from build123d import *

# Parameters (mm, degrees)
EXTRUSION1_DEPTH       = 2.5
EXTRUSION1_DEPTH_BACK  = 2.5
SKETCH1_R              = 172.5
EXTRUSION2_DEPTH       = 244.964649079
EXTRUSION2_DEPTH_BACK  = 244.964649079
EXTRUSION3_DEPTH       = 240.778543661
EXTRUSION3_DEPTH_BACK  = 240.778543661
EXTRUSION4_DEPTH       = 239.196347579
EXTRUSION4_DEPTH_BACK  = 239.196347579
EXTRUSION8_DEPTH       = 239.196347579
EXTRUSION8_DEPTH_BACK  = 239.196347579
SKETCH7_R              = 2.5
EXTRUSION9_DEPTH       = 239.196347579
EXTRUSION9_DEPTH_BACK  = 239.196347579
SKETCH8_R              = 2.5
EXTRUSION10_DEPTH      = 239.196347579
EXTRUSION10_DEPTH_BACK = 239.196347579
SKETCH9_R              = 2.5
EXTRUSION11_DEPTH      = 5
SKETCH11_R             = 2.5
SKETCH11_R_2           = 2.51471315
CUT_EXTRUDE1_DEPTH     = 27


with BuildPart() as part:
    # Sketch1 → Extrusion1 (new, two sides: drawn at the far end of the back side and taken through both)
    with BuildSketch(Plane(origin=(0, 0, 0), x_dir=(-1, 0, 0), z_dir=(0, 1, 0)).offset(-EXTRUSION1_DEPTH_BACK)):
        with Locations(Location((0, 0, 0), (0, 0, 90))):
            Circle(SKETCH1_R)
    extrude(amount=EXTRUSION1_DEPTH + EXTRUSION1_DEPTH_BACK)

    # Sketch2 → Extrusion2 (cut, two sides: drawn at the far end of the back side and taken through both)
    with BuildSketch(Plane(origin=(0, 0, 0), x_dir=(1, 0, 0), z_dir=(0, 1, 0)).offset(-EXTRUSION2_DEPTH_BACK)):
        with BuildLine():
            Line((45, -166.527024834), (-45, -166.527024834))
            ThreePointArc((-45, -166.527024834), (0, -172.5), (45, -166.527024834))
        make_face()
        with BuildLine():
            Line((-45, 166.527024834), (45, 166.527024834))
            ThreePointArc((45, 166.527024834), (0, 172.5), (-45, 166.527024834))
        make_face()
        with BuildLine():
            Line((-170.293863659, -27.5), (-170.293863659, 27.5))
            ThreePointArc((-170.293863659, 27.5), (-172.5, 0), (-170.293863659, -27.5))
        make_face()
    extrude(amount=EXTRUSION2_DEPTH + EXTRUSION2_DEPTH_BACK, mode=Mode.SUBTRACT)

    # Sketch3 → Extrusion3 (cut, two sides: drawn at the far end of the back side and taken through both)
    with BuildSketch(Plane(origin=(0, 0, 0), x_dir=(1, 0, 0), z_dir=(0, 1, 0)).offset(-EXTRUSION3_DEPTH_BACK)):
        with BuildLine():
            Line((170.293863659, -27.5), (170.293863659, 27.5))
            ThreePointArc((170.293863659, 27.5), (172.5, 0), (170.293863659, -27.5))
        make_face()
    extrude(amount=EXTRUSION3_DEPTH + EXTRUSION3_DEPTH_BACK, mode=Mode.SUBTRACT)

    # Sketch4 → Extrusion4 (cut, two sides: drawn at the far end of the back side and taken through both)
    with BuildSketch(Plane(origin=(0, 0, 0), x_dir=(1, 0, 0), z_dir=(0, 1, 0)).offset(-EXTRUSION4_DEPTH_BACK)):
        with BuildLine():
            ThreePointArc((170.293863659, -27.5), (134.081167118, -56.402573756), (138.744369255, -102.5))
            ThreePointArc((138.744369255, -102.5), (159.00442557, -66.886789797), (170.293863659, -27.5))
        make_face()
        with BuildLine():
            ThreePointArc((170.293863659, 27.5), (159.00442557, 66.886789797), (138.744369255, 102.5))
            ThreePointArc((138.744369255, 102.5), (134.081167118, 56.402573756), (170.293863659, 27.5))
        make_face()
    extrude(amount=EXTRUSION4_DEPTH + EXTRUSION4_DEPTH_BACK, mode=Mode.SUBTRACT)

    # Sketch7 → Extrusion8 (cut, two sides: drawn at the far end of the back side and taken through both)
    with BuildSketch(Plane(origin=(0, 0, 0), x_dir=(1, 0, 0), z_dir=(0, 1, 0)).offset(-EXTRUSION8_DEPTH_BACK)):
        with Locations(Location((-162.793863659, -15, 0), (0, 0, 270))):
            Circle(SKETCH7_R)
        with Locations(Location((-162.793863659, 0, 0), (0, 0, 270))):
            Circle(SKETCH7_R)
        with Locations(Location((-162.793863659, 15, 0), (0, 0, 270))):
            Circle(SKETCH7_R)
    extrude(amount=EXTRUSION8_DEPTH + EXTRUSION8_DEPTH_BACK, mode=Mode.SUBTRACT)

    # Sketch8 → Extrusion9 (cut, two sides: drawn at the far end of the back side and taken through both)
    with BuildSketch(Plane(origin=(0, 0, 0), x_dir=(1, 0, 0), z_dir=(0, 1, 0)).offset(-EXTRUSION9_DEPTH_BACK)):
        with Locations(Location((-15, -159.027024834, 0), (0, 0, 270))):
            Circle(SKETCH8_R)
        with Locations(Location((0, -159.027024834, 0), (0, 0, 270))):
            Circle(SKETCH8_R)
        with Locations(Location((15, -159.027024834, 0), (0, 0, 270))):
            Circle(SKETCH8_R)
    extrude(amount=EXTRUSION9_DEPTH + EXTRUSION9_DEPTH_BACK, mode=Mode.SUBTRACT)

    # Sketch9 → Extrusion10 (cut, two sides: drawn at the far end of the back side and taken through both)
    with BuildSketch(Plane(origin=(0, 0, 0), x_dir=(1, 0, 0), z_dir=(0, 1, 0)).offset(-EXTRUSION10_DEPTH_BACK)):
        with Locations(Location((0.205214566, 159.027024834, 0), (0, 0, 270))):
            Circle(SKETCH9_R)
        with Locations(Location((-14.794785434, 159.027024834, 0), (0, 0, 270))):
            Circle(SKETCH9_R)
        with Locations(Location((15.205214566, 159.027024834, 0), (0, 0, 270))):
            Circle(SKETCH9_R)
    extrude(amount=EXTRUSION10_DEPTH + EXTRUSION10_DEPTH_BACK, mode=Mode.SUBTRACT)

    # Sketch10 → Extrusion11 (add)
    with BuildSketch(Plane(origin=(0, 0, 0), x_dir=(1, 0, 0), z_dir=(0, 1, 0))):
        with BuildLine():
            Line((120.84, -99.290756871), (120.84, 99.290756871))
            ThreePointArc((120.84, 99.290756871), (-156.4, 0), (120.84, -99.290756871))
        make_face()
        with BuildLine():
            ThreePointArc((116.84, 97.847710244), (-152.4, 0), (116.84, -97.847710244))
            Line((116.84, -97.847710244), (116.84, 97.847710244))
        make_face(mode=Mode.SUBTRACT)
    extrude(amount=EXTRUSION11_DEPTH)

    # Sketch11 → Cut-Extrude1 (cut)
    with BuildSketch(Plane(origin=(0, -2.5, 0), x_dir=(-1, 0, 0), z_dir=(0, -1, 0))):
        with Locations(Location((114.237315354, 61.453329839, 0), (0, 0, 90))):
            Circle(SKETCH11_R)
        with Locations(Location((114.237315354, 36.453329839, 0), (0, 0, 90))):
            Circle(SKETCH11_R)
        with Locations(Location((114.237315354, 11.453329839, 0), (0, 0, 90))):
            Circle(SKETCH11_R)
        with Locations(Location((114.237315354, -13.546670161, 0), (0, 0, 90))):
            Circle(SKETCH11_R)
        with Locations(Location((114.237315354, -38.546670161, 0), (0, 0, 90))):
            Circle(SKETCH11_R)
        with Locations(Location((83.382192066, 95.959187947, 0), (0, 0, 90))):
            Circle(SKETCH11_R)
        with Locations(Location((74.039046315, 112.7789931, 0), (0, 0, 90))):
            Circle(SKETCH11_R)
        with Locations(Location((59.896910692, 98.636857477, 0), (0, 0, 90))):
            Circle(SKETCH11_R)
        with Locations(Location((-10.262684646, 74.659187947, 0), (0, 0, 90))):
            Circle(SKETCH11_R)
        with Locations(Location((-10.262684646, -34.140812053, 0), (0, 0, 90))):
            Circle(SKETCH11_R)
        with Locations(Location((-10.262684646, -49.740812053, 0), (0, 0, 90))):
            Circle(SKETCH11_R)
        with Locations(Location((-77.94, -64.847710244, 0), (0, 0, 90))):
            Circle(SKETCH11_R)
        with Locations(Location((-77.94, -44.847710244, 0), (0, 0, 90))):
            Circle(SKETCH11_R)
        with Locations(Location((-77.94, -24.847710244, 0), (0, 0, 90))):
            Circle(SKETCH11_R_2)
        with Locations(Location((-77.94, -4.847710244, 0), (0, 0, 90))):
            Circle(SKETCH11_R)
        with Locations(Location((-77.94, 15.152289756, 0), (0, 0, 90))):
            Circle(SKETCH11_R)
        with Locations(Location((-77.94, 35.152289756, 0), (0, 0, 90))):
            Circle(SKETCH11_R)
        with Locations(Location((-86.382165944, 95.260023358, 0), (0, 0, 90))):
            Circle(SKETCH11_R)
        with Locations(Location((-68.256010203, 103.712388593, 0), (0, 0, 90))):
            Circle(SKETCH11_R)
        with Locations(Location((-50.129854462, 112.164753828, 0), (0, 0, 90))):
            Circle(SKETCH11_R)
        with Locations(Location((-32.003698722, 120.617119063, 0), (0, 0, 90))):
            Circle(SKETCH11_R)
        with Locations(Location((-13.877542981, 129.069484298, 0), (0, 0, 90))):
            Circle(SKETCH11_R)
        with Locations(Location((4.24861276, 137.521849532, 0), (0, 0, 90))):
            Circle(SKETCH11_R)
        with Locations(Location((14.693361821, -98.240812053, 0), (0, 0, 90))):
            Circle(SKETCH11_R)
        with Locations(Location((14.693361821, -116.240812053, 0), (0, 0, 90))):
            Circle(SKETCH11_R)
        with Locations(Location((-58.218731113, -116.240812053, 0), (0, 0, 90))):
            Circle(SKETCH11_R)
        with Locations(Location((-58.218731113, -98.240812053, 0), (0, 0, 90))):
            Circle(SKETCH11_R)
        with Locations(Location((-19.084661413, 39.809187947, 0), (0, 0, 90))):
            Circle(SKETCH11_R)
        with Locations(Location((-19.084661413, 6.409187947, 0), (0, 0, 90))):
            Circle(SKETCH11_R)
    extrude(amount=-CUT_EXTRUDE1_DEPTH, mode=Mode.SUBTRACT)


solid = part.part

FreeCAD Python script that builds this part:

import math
import FreeCAD as App
import Part
import Sketcher

V = App.Vector
Q = App.Units.Quantity

doc = App.newDocument("Part")
body = doc.addObject("PartDesign::Body", "Body")

# Sketch on XZ plane
sketch1 = doc.addObject("Sketcher::SketchObject", "Sketch")
body.addObject(sketch1)
sketch1.AttachmentSupport = (doc.XZ_Plane, [""])
sketch1.MapMode = "FlatFace"
sketch1.addGeometry(Part.Circle(V(0, 0, 0), V(0, 0, 1), 172.5), False)
sketch1.addConstraint(Sketcher.Constraint("Coincident", 0, 3, -1, 1))
sketch1.addConstraint(Sketcher.Constraint("Diameter", 0, Q("345 mm")))
pad1 = doc.addObject("PartDesign::Pad", "Pad")
body.addObject(pad1)
pad1.Profile = sketch1
pad1.Type = "TwoLengths"
pad1.Length = 2.5
pad1.Length2 = 2.5
pad1.Reversed = True

# Sketch on XZ plane
sketch2 = doc.addObject("Sketcher::SketchObject", "Sketch001")
body.addObject(sketch2)
sketch2.AttachmentSupport = (doc.XZ_Plane, [""])
sketch2.MapMode = "FlatFace"
sketch2.addGeometry(Part.LineSegment(V(45, 166.527025, 0), V(-45, 166.527025, 0)), False)
sketch2.addGeometry(Part.ArcOfCircle(Part.Circle(V(0, 0, 0), V(0, 0, 1), 172.5), math.radians(74.878335), math.radians(105.121665)), False)
sketch2.addGeometry(Part.LineSegment(V(-45, -166.527025, 0), V(45, -166.527025, 0)), False)
sketch2.addGeometry(Part.ArcOfCircle(Part.Circle(V(0, 0, 0), V(0, 0, 1), 172.5), math.radians(-105.121665), math.radians(-74.878335)), False)
sketch2.addGeometry(Part.LineSegment(V(-170.293864, 27.5, 0), V(-170.293864, -27.5, 0)), False)
sketch2.addGeometry(Part.ArcOfCircle(Part.Circle(V(0, 0, 0), V(0, 0, 1), 172.5), math.radians(170.826751), math.radians(189.173249)), False)
sketch2.addConstraint(Sketcher.Constraint("Coincident", 0, 1, 1, 1))
sketch2.addConstraint(Sketcher.Constraint("Coincident", 1, 2, 0, 2))
sketch2.addConstraint(Sketcher.Constraint("Coincident", 2, 1, 3, 1))
sketch2.addConstraint(Sketcher.Constraint("Coincident", 3, 2, 2, 2))
sketch2.addConstraint(Sketcher.Constraint("Coincident", 4, 1, 5, 1))
sketch2.addConstraint(Sketcher.Constraint("Coincident", 5, 2, 4, 2))
sketch2.addConstraint(Sketcher.Constraint("Horizontal", 0))
sketch2.addConstraint(Sketcher.Constraint("Horizontal", 2))
sketch2.addConstraint(Sketcher.Constraint("Vertical", 4))
sketch2.addConstraint(Sketcher.Constraint("Coincident", 1, 3, -1, 1))
sketch2.addConstraint(Sketcher.Constraint("Coincident", 3, 3, -1, 1))
sketch2.addConstraint(Sketcher.Constraint("Coincident", 5, 3, -1, 1))
sketch2.addConstraint(Sketcher.Constraint("Equal", 1, 3))
sketch2.addConstraint(Sketcher.Constraint("Equal", 3, 5))
sketch2.addConstraint(Sketcher.Constraint("Vertical", 1, 2, 2, 1))
sketch2.addConstraint(Sketcher.Constraint("Radius", 1, Q("172.5 mm")))
sketch2.addConstraint(Sketcher.Constraint("DistanceX", 0, 2, 0, 1, Q("90 mm")))
sketch2.addConstraint(Sketcher.Constraint("DistanceY", 4, 2, 4, 1, Q("55 mm")))
pocket1 = doc.addObject("PartDesign::Pocket", "Pocket")
body.addObject(pocket1)
pocket1.Profile = sketch2
pocket1.Type = "ThroughAll"
pocket1.Midplane = True

# Sketch on XZ plane
sketch3 = doc.addObject("Sketcher::SketchObject", "Sketch002")
body.addObject(sketch3)
sketch3.AttachmentSupport = (doc.XZ_Plane, [""])
sketch3.MapMode = "FlatFace"
sketch3.addGeometry(Part.LineSegment(V(170.293864, -27.5, 0), V(170.293864, 27.5, 0)), False)
sketch3.addGeometry(Part.ArcOfCircle(Part.Circle(V(0, 0, 0), V(0, 0, 1), 172.5), math.radians(-9.173249), math.radians(9.173249)), False)
sketch3.addConstraint(Sketcher.Constraint("Coincident", 0, 1, 1, 1))
sketch3.addConstraint(Sketcher.Constraint("Coincident", 1, 2, 0, 2))
sketch3.addConstraint(Sketcher.Constraint("Vertical", 0))
sketch3.addConstraint(Sketcher.Constraint("Coincident", 1, 3, -1, 1))
sketch3.addConstraint(Sketcher.Constraint("Radius", 1, Q("172.5 mm")))
sketch3.addConstraint(Sketcher.Constraint("DistanceY", 0, 1, 0, 2, Q("55 mm")))
pocket2 = doc.addObject("PartDesign::Pocket", "Pocket001")
body.addObject(pocket2)
pocket2.Profile = sketch3
pocket2.Type = "ThroughAll"
pocket2.Midplane = True

# Sketch on XZ plane
sketch4 = doc.addObject("Sketcher::SketchObject", "Sketch003")
body.addObject(sketch4)
sketch4.AttachmentSupport = (doc.XZ_Plane, [""])
sketch4.MapMode = "FlatFace"
sketch4.addGeometry(Part.ArcOfCircle(Part.Circle(V(178.703055, 75.173214, 0), V(0, 0, 1), 48.409191), math.radians(145.632713), math.radians(259.996366)), False)
sketch4.addGeometry(Part.ArcOfCircle(Part.Circle(V(0, 0, 0), V(0, 0, 1), 172.5), math.radians(9.173249), math.radians(36.455829)), False)
sketch4.addGeometry(Part.ArcOfCircle(Part.Circle(V(0, 0, 0), V(0, 0, 1), 172.5), math.radians(-36.455829), math.radians(-9.173249)), False)
sketch4.addGeometry(Part.ArcOfCircle(Part.Circle(V(178.703055, -75.173214, 0), V(0, 0, 1), 48.409191), math.radians(100.003634), math.radians(214.367287)), False)
sketch4.addConstraint(Sketcher.Constraint("Coincident", 0, 1, 1, 2))
sketch4.addConstraint(Sketcher.Constraint("Coincident", 1, 1, 0, 2))
sketch4.addConstraint(Sketcher.Constraint("Coincident", 2, 1, 3, 2))
sketch4.addConstraint(Sketcher.Constraint("Coincident", 3, 1, 2, 2))
sketch4.addConstraint(Sketcher.Constraint("Coincident", 1, 3, -1, 1))
sketch4.addConstraint(Sketcher.Constraint("Coincident", 2, 3, -1, 1))
sketch4.addConstraint(Sketcher.Constraint("Equal", 1, 2))
sketch4.addConstraint(Sketcher.Constraint("Equal", 0, 3))
sketch4.addConstraint(Sketcher.Constraint("Symmetric", 0, 3, 3, 3, -1))
sketch4.addConstraint(Sketcher.Constraint("Radius", 1, Q("172.5 mm")))
sketch4.addConstraint(Sketcher.Constraint("DistanceY", 1, 1, 0, 1, Q("75 mm")))
sketch4.addConstraint(Sketcher.Constraint("DistanceY", 2, 1, 1, 1, Q("130 mm")))
sketch4.addConstraint(Sketcher.Constraint("Radius", 0, Q("48.409191 mm")))
pocket3 = doc.addObject("PartDesign::Pocket", "Pocket002")
body.addObject(pocket3)
pocket3.Profile = sketch4
pocket3.Type = "ThroughAll"
pocket3.Midplane = True

# Sketch on XZ plane
sketch5 = doc.addObject("Sketcher::SketchObject", "Sketch004")
body.addObject(sketch5)
sketch5.AttachmentSupport = (doc.XZ_Plane, [""])
sketch5.MapMode = "FlatFace"
sketch5.addGeometry(Part.Circle(V(-162.793864, 15, 0), V(0, 0, 1), 2.5), False)
sketch5.addGeometry(Part.Circle(V(-162.793864, 0, 0), V(0, 0, 1), 2.5), False)
sketch5.addGeometry(Part.Circle(V(-162.793864, -15, 0), V(0, 0, 1), 2.5), False)
sketch5.addConstraint(Sketcher.Constraint("Equal", 0, 1))
sketch5.addConstraint(Sketcher.Constraint("Equal", 1, 2))
sketch5.addConstraint(Sketcher.Constraint("Symmetric", 0, 3, 2, 3, -1))
sketch5.addConstraint(Sketcher.Constraint("PointOnObject", 1, 3, -1))
sketch5.addConstraint(Sketcher.Constraint("Vertical", 0, 3, 1, 3))
sketch5.addConstraint(Sketcher.Constraint("Diameter", 0, Q("5 mm")))
sketch5.addConstraint(Sketcher.Constraint("DistanceY", -1, 1, 0, 3, Q("15 mm")))
sketch5.addConstraint(Sketcher.Constraint("DistanceX", 0, 3, -1, 1, Q("162.793864 mm")))
pocket4 = doc.addObject("PartDesign::Pocket", "Pocket003")
body.addObject(pocket4)
pocket4.Profile = sketch5
pocket4.Type = "ThroughAll"
pocket4.Midplane = True

# Sketch on XZ plane
sketch6 = doc.addObject("Sketcher::SketchObject", "Sketch005")
body.addObject(sketch6)
sketch6.AttachmentSupport = (doc.XZ_Plane, [""])
sketch6.MapMode = "FlatFace"
sketch6.addGeometry(Part.Circle(V(-15, 159.027025, 0), V(0, 0, 1), 2.5), False)
sketch6.addGeometry(Part.Circle(V(0, 159.027025, 0), V(0, 0, 1), 2.5), False)
sketch6.addGeometry(Part.Circle(V(15, 159.027025, 0), V(0, 0, 1), 2.5), False)
sketch6.addConstraint(Sketcher.Constraint("Equal", 0, 1))
sketch6.addConstraint(Sketcher.Constraint("Equal", 1, 2))
sketch6.addConstraint(Sketcher.Constraint("Symmetric", 0, 3, 2, 3, -2))
sketch6.addConstraint(Sketcher.Constraint("PointOnObject", 1, 3, -2))
sketch6.addConstraint(Sketcher.Constraint("Horizontal", 0, 3, 1, 3))
sketch6.addConstraint(Sketcher.Constraint("Diameter", 0, Q("5 mm")))
sketch6.addConstraint(Sketcher.Constraint("DistanceX", 0, 3, -1, 1, Q("15 mm")))
sketch6.addConstraint(Sketcher.Constraint("DistanceY", -1, 1, 0, 3, Q("159.027025 mm")))
pocket5 = doc.addObject("PartDesign::Pocket", "Pocket004")
body.addObject(pocket5)
pocket5.Profile = sketch6
pocket5.Type = "ThroughAll"
pocket5.Midplane = True

# Sketch on XZ plane
sketch7 = doc.addObject("Sketcher::SketchObject", "Sketch006")
body.addObject(sketch7)
sketch7.AttachmentSupport = (doc.XZ_Plane, [""])
sketch7.MapMode = "FlatFace"
sketch7.addGeometry(Part.Circle(V(0.205215, -159.027025, 0), V(0, 0, 1), 2.5), False)
sketch7.addGeometry(Part.Circle(V(-14.794785, -159.027025, 0), V(0, 0, 1), 2.5), False)
sketch7.addGeometry(Part.Circle(V(15.205215, -159.027025, 0), V(0, 0, 1), 2.5), False)
sketch7.addConstraint(Sketcher.Constraint("Equal", 0, 1))
sketch7.addConstraint(Sketcher.Constraint("Equal", 1, 2))
sketch7.addConstraint(Sketcher.Constraint("Horizontal", 0, 3, 1, 3))
sketch7.addConstraint(Sketcher.Constraint("Horizontal", 1, 3, 2, 3))
sketch7.addConstraint(Sketcher.Constraint("Diameter", 0, Q("5 mm")))
sketch7.addConstraint(Sketcher.Constraint("DistanceX", 1, 3, 0, 3, Q("15 mm")))
sketch7.addConstraint(Sketcher.Constraint("DistanceX", 0, 3, 2, 3, Q("15 mm")))
sketch7.addConstraint(Sketcher.Constraint("DistanceX", -1, 1, 0, 3, Q("0.205215 mm")))
sketch7.addConstraint(Sketcher.Constraint("DistanceY", 0, 3, -1, 1, Q("159.027025 mm")))
pocket6 = doc.addObject("PartDesign::Pocket", "Pocket005")
body.addObject(pocket6)
pocket6.Profile = sketch7
pocket6.Type = "ThroughAll"
pocket6.Midplane = True

# Sketch on XZ plane
sketch8 = doc.addObject("Sketcher::SketchObject", "Sketch007")
body.addObject(sketch8)
sketch8.AttachmentSupport = (doc.XZ_Plane, [""])
sketch8.MapMode = "FlatFace"
sketch8.addGeometry(Part.LineSegment(V(120.84, 99.290757, 0), V(120.84, -99.290757, 0)), False)
sketch8.addGeometry(Part.ArcOfCircle(Part.Circle(V(0, 0, 0), V(0, 0, 1), 156.4), math.radians(39.408963), math.radians(320.591037)), False)
sketch8.addGeometry(Part.ArcOfCircle(Part.Circle(V(0, 0, 0), V(0, 0, 1), 152.4), math.radians(39.944505), math.radians(320.055495)), False)
sketch8.addGeometry(Part.LineSegment(V(116.84, -97.84771, 0), V(116.84, 97.84771, 0)), False)
sketch8.addConstraint(Sketcher.Constraint("Coincident", 0, 1, 1, 1))
sketch8.addConstraint(Sketcher.Constraint("Coincident", 1, 2, 0, 2))
sketch8.addConstraint(Sketcher.Constraint("Coincident", 2, 1, 3, 2))
sketch8.addConstraint(Sketcher.Constraint("Coincident", 3, 1, 2, 2))
sketch8.addConstraint(Sketcher.Constraint("Vertical", 0))
sketch8.addConstraint(Sketcher.Constraint("Vertical", 3))
sketch8.addConstraint(Sketcher.Constraint("Coincident", 1, 3, -1, 1))
sketch8.addConstraint(Sketcher.Constraint("Coincident", 2, 3, -1, 1))
sketch8.addConstraint(Sketcher.Constraint("Radius", 1, Q("156.4 mm")))
sketch8.addConstraint(Sketcher.Constraint("Radius", 2, Q("152.4 mm")))
sketch8.addConstraint(Sketcher.Constraint("DistanceX", 2, 1, 0, 1, Q("4 mm")))
sketch8.addConstraint(Sketcher.Constraint("DistanceX", -1, 1, 0, 1, Q("120.84 mm")))
pad2 = doc.addObject("PartDesign::Pad", "Pad001")
body.addObject(pad2)
pad2.Profile = sketch8
pad2.Length = 5
pad2.Reversed = True

# Sketch on XZ plane
sketch9 = doc.addObject("Sketcher::SketchObject", "Sketch008")
body.addObject(sketch9)
sketch9.AttachmentSupport = (doc.XZ_Plane, [""])
sketch9.MapMode = "FlatFace"
sketch9.AttachmentOffset = App.Placement(V(0, 0, 2.5), App.Rotation())
sketch9.addGeometry(Part.Circle(V(-114.237315, -61.45333, 0), V(0, 0, 1), 2.5), False)
sketch9.addGeometry(Part.Circle(V(-114.237315, -36.45333, 0), V(0, 0, 1), 2.5), False)
sketch9.addGeometry(Part.Circle(V(-114.237315, -11.45333, 0), V(0, 0, 1), 2.5), False)
sketch9.addGeometry(Part.Circle(V(-114.237315, 13.54667, 0), V(0, 0, 1), 2.5), False)
sketch9.addGeometry(Part.Circle(V(-114.237315, 38.54667, 0), V(0, 0, 1), 2.5), False)
sketch9.addGeometry(Part.Circle(V(-83.382192, -95.959188, 0), V(0, 0, 1), 2.5), False)
sketch9.addGeometry(Part.Circle(V(-74.039046, -112.778993, 0), V(0, 0, 1), 2.5), False)
sketch9.addGeometry(Part.Circle(V(-59.896911, -98.636857, 0), V(0, 0, 1), 2.5), False)
sketch9.addGeometry(Part.Circle(V(10.262685, -74.659188, 0), V(0, 0, 1), 2.5), False)
sketch9.addGeometry(Part.Circle(V(10.262685, 34.140812, 0), V(0, 0, 1), 2.5), False)
sketch9.addGeometry(Part.Circle(V(10.262685, 49.740812, 0), V(0, 0, 1), 2.5), False)
sketch9.addGeometry(Part.Circle(V(77.94, 64.84771, 0), V(0, 0, 1), 2.5), False)
sketch9.addGeometry(Part.Circle(V(77.94, 44.84771, 0), V(0, 0, 1), 2.5), False)
sketch9.addGeometry(Part.Circle(V(77.94, 24.84771, 0), V(0, 0, 1), 2.514713), False)
sketch9.addGeometry(Part.Circle(V(77.94, 4.84771, 0), V(0, 0, 1), 2.5), False)
sketch9.addGeometry(Part.Circle(V(77.94, -15.15229, 0), V(0, 0, 1), 2.5), False)
sketch9.addGeometry(Part.Circle(V(77.94, -35.15229, 0), V(0, 0, 1), 2.5), False)
sketch9.addGeometry(Part.Circle(V(86.382166, -95.260023, 0), V(0, 0, 1), 2.5), False)
sketch9.addGeometry(Part.Circle(V(68.25601, -103.712389, 0), V(0, 0, 1), 2.5), False)
sketch9.addGeometry(Part.Circle(V(50.129854, -112.164754, 0), V(0, 0, 1), 2.5), False)
sketch9.addGeometry(Part.Circle(V(32.003699, -120.617119, 0), V(0, 0, 1), 2.5), False)
sketch9.addGeometry(Part.Circle(V(13.877543, -129.069484, 0), V(0, 0, 1), 2.5), False)
sketch9.addGeometry(Part.Circle(V(-4.248613, -137.52185, 0), V(0, 0, 1), 2.5), False)
sketch9.addGeometry(Part.Circle(V(-14.693362, 98.240812, 0), V(0, 0, 1), 2.5), False)
sketch9.addGeometry(Part.Circle(V(-14.693362, 116.240812, 0), V(0, 0, 1), 2.5), False)
sketch9.addGeometry(Part.Circle(V(58.218731, 116.240812, 0), V(0, 0, 1), 2.5), False)
sketch9.addGeometry(Part.Circle(V(58.218731, 98.240812, 0), V(0, 0, 1), 2.5), False)
sketch9.addGeometry(Part.Circle(V(19.084661, -39.809188, 0), V(0, 0, 1), 2.5), False)
sketch9.addGeometry(Part.Circle(V(19.084661, -6.409188, 0), V(0, 0, 1), 2.5), False)
sketch9.addConstraint(Sketcher.Constraint("Equal", 0, 1))
sketch9.addConstraint(Sketcher.Constraint("Equal", 1, 2))
sketch9.addConstraint(Sketcher.Constraint("Equal", 2, 3))
sketch9.addConstraint(Sketcher.Constraint("Equal", 3, 4))
sketch9.addConstraint(Sketcher.Constraint("Equal", 4, 5))
sketch9.addConstraint(Sketcher.Constraint("Equal", 5, 6))
sketch9.addConstraint(Sketcher.Constraint("Equal", 6, 7))
sketch9.addConstraint(Sketcher.Constraint("Equal", 7, 8))
sketch9.addConstraint(Sketcher.Constraint("Equal", 8, 9))
sketch9.addConstraint(Sketcher.Constraint("Equal", 9, 10))
sketch9.addConstraint(Sketcher.Constraint("Equal", 10, 11))
sketch9.addConstraint(Sketcher.Constraint("Equal", 11, 12))
sketch9.addConstraint(Sketcher.Constraint("Equal", 12, 14))
sketch9.addConstraint(Sketcher.Constraint("Equal", 14, 15))
sketch9.addConstraint(Sketcher.Constraint("Equal", 15, 16))
sketch9.addConstraint(Sketcher.Constraint("Equal", 16, 17))
sketch9.addConstraint(Sketcher.Constraint("Equal", 17, 18))
sketch9.addConstraint(Sketcher.Constraint("Equal", 18, 19))
sketch9.addConstraint(Sketcher.Constraint("Equal", 19, 20))
sketch9.addConstraint(Sketcher.Constraint("Equal", 20, 21))
sketch9.addConstraint(Sketcher.Constraint("Equal", 21, 22))
sketch9.addConstraint(Sketcher.Constraint("Equal", 22, 23))
sketch9.addConstraint(Sketcher.Constraint("Equal", 23, 24))
sketch9.addConstraint(Sketcher.Constraint("Equal", 24, 25))
sketch9.addConstraint(Sketcher.Constraint("Equal", 25, 26))
sketch9.addConstraint(Sketcher.Constraint("Equal", 26, 27))
sketch9.addConstraint(Sketcher.Constraint("Equal", 27, 28))
sketch9.addConstraint(Sketcher.Constraint("Horizontal", 24, 3, 25, 3))
sketch9.addConstraint(Sketcher.Constraint("Horizontal", 23, 3, 26, 3))
sketch9.addConstraint(Sketcher.Constraint("Vertical", 0, 3, 1, 3))
sketch9.addConstraint(Sketcher.Constraint("Vertical", 1, 3, 2, 3))
sketch9.addConstraint(Sketcher.Constraint("Vertical", 2, 3, 3, 3))
sketch9.addConstraint(Sketcher.Constraint("Vertical", 3, 3, 4, 3))
sketch9.addConstraint(Sketcher.Constraint("Vertical", 8, 3, 9, 3))
sketch9.addConstraint(Sketcher.Constraint("Vertical", 9, 3, 10, 3))
sketch9.addConstraint(Sketcher.Constraint("Vertical", 11, 3, 12, 3))
sketch9.addConstraint(Sketcher.Constraint("Vertical", 12, 3, 13, 3))
sketch9.addConstraint(Sketcher.Constraint("Vertical", 13, 3, 14, 3))
sketch9.addConstraint(Sketcher.Constraint("Vertical", 14, 3, 15, 3))
sketch9.addConstraint(Sketcher.Constraint("Vertical", 15, 3, 16, 3))
sketch9.addConstraint(Sketcher.Constraint("Vertical", 23, 3, 24, 3))
sketch9.addConstraint(Sketcher.Constraint("Vertical", 25, 3, 26, 3))
sketch9.addConstraint(Sketcher.Constraint("Vertical", 27, 3, 28, 3))
sketch9.addConstraint(Sketcher.Constraint("Diameter", 0, Q("5 mm")))
sketch9.addConstraint(Sketcher.Constraint("DistanceY", 0, 3, 1, 3, Q("25 mm")))
sketch9.addConstraint(Sketcher.Constraint("DistanceY", 1, 3, 2, 3, Q("25 mm")))
sketch9.addConstraint(Sketcher.Constraint("DistanceY", 2, 3, 3, 3, Q("25 mm")))
sketch9.addConstraint(Sketcher.Constraint("DistanceY", 3, 3, 4, 3, Q("25 mm")))
sketch9.addConstraint(Sketcher.Constraint("DistanceY", 12, 3, 11, 3, Q("20 mm")))
sketch9.addConstraint(Sketcher.Constraint("DistanceY", 13, 3, 12, 3, Q("20 mm")))
sketch9.addConstraint(Sketcher.Constraint("DistanceY", 14, 3, 13, 3, Q("20 mm")))
sketch9.addConstraint(Sketcher.Constraint("DistanceY", 15, 3, 14, 3, Q("20 mm")))
sketch9.addConstraint(Sketcher.Constraint("DistanceY", 16, 3, 15, 3, Q("20 mm")))
sketch9.addConstraint(Sketcher.Constraint("DistanceY", 23, 3, 24, 3, Q("18 mm")))
sketch9.addConstraint(Sketcher.Constraint("DistanceY", 5, 3, 8, 3, Q("21.3 mm")))
sketch9.addConstraint(Sketcher.Constraint("DistanceX", 0, 3, 8, 3, Q("124.5 mm")))
sketch9.addConstraint(Sketcher.Constraint("DistanceY", 8, 3, 9, 3, Q("108.8 mm")))
sketch9.addConstraint(Sketcher.Constraint("DistanceY", 9, 3, 10, 3, Q("15.6 mm")))
sketch9.addConstraint(Sketcher.Constraint("DistanceY", 10, 3, 23, 3, Q("48.5 mm")))
sketch9.addConstraint(Sketcher.Constraint("DistanceY", 27, 3, 28, 3, Q("33.4 mm")))
sketch9.addConstraint(Sketcher.Constraint("DistanceX", -1, 1, 11, 3, Q("77.94 mm")))
sketch9.addConstraint(Sketcher.Constraint("DistanceY", 8, 3, 27, 3, Q("34.85 mm")))
sketch9.addConstraint(Sketcher.Constraint("Diameter", 13, Q("5.029426 mm")))
sketch9.addConstraint(Sketcher.Constraint("DistanceX", -1, 1, 20, 3, Q("32.003699 mm")))
sketch9.addConstraint(Sketcher.Constraint("DistanceY", 10, 3, 11, 3, Q("15.106898 mm")))
sketch9.addConstraint(Sketcher.Constraint("DistanceY", 18, 3, 8, 3, Q("29.053201 mm")))
sketch9.addConstraint(Sketcher.Constraint("DistanceY", 0, 3, -1, 1, Q("61.45333 mm")))
sketch9.addConstraint(Sketcher.Constraint("DistanceX", 7, 3, -1, 1, Q("59.896911 mm")))
sketch9.addConstraint(Sketcher.Constraint("DistanceY", -1, 1, 11, 3, Q("64.84771 mm")))
sketch9.addConstraint(Sketcher.Constraint("DistanceX", -1, 1, 18, 3, Q("68.25601 mm")))
sketch9.addConstraint(Sketcher.Constraint("DistanceY", 20, 3, -1, 1, Q("120.617119 mm")))
sketch9.addConstraint(Sketcher.Constraint("DistanceY", 22, 3, -1, 1, Q("137.52185 mm")))
sketch9.addConstraint(Sketcher.Constraint("DistanceX", 23, 3, -1, 1, Q("14.693362 mm")))
sketch9.addConstraint(Sketcher.Constraint("DistanceX", -1, 1, 25, 3, Q("58.218731 mm")))
sketch9.addConstraint(Sketcher.Constraint("DistanceX", -1, 1, 27, 3, Q("19.084661 mm")))
sketch9.addConstraint(Sketcher.Constraint("DistanceX", 0, 3, 6, 3, Q("40.198269 mm")))
sketch9.addConstraint(Sketcher.Constraint("DistanceX", 5, 3, 7, 3, Q("23.485281 mm")))
sketch9.addConstraint(Sketcher.Constraint("DistanceY", 7, 3, 5, 3, Q("2.67767 mm")))
sketch9.addConstraint(Sketcher.Constraint("DistanceX", 8, 3, 17, 3, Q("76.119481 mm")))
sketch9.addConstraint(Sketcher.Constraint("DistanceX", 19, 3, 17, 3, Q("36.252311 mm")))
sketch9.addConstraint(Sketcher.Constraint("DistanceY", 19, 3, 17, 3, Q("16.90473 mm")))
sketch9.addConstraint(Sketcher.Constraint("DistanceX", 21, 3, 19, 3, Q("36.252311 mm")))
sketch9.addConstraint(Sketcher.Constraint("DistanceY", 21, 3, 19, 3, Q("16.90473 mm")))
sketch9.addConstraint(Sketcher.Constraint("DistanceX", 22, 3, 20, 3, Q("36.252311 mm")))
sketch9.addConstraint(Sketcher.Constraint("DistanceX", 0, 3, -1, 1, Q("114.237315 mm")))
sketch9.addConstraint(Sketcher.Constraint("DistanceY", 6, 3, -1, 1, Q("112.778993 mm")))
sketch9.addConstraint(Sketcher.Constraint("DistanceY", 17, 3, -1, 1, Q("95.260023 mm")))
pocket7 = doc.addObject("PartDesign::Pocket", "Pocket006")
body.addObject(pocket7)
pocket7.Profile = sketch9
pocket7.Length = 27

doc.recompute()
